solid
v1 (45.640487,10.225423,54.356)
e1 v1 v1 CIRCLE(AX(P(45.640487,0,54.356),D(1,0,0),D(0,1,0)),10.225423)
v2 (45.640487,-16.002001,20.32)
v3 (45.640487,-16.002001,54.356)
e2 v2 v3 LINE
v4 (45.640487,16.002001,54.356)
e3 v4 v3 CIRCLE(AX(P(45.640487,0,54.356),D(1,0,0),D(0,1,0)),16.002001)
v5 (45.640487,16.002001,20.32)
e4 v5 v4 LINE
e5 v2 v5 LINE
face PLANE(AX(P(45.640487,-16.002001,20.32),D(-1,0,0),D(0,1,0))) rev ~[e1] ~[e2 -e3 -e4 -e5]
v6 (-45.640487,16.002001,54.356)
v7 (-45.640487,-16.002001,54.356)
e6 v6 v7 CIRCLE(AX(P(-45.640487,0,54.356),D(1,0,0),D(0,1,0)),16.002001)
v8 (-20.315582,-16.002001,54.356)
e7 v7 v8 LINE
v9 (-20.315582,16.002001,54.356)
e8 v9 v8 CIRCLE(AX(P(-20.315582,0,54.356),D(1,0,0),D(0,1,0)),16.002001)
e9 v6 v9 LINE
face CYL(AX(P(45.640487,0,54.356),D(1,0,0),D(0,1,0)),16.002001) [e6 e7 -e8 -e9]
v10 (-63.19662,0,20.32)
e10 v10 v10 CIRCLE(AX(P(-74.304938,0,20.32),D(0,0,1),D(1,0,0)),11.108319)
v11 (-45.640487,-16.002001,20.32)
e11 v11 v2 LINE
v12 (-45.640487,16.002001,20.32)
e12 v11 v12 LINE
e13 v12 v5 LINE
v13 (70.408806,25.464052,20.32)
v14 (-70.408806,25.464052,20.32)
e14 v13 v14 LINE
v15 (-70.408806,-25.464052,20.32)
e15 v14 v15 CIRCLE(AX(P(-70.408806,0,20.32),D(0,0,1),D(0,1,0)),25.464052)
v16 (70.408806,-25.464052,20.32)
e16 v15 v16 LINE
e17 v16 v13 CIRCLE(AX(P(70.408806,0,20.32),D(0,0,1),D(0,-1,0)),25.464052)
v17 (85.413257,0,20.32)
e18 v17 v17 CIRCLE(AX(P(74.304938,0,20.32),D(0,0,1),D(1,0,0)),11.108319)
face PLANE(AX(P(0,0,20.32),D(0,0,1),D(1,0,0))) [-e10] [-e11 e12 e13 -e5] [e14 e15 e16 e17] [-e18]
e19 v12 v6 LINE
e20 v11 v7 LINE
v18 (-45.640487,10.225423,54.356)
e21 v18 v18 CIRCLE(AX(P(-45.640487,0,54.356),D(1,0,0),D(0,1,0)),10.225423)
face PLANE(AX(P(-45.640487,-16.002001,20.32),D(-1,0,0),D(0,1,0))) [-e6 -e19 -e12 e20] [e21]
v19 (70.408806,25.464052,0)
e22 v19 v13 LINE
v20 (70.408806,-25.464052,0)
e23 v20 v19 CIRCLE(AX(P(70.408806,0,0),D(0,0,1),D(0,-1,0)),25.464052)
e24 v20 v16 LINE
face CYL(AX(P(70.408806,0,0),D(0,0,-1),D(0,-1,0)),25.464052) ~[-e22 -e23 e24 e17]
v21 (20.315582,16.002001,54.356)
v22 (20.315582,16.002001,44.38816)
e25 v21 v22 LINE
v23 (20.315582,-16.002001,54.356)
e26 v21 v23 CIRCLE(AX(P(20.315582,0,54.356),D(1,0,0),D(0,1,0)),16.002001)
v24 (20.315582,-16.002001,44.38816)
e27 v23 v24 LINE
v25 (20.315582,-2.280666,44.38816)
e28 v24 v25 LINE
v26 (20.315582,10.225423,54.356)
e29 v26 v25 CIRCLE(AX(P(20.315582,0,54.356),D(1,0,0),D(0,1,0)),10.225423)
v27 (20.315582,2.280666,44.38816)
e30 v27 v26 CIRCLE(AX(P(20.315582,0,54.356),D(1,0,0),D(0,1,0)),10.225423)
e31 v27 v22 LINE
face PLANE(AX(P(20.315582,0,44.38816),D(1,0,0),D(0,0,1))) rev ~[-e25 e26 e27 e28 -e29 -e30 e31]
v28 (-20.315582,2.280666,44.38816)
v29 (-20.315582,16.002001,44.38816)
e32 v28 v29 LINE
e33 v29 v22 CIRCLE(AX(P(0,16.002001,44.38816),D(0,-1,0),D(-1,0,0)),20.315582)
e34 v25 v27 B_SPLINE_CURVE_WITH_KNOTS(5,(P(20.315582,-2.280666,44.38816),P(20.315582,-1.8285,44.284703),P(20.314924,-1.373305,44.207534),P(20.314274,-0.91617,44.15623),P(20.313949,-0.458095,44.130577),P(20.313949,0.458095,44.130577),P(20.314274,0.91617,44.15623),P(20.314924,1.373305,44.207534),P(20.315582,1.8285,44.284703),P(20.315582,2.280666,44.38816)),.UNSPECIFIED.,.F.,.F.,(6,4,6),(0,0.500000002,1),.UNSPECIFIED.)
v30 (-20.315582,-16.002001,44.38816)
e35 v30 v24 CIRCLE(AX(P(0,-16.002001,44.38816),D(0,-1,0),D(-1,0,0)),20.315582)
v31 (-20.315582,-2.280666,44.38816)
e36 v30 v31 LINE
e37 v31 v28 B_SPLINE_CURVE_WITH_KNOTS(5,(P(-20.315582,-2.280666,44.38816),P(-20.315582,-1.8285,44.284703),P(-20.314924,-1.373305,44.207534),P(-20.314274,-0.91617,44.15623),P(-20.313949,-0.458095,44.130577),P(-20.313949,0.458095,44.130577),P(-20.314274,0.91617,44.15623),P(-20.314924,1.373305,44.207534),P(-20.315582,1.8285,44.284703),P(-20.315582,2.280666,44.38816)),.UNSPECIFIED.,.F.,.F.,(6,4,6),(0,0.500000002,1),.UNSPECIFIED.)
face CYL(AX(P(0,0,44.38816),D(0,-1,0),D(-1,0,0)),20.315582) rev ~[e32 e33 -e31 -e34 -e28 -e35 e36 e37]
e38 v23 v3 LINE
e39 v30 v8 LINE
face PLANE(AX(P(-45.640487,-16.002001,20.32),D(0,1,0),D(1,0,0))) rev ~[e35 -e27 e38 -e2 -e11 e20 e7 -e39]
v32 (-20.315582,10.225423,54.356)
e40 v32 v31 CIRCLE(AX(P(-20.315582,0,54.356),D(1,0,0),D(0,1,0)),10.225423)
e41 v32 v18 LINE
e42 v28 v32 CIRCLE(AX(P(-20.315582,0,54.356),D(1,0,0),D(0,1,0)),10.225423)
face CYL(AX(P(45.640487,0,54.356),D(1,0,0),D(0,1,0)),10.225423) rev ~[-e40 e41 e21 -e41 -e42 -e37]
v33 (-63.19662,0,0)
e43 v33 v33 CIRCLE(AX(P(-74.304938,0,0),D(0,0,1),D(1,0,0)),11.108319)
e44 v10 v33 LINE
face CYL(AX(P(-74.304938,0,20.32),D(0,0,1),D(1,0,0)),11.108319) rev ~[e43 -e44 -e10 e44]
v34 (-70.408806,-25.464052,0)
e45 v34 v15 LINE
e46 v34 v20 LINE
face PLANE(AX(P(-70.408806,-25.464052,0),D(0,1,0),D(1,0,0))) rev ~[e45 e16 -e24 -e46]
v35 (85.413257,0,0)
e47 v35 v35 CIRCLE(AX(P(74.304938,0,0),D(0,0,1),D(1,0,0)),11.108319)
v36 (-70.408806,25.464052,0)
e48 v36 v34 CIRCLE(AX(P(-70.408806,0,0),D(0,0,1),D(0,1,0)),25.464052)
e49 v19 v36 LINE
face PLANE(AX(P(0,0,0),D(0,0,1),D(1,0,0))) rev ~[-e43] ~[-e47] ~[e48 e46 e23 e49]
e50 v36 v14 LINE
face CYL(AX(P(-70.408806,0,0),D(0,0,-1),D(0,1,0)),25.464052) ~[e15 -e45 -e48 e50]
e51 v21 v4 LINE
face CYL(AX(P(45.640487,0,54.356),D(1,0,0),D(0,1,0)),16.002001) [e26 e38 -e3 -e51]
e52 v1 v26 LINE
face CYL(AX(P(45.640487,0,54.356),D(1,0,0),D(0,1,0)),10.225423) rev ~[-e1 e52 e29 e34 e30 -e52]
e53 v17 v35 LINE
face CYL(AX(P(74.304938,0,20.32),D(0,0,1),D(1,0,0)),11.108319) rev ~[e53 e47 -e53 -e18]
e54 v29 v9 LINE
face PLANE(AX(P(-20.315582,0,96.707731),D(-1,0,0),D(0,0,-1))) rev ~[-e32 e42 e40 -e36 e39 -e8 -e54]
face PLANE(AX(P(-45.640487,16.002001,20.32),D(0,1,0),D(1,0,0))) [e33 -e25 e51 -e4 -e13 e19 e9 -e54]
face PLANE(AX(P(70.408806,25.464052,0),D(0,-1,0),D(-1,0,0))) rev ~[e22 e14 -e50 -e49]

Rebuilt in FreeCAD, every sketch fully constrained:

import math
import FreeCAD as App
import Part
import Sketcher

V = App.Vector
Q = App.Units.Quantity


def add_polygon(sketch, points):
    """Adds a closed chain of lines whose ends are joined by coincident constraints."""
    first, n = sketch.GeometryCount, len(points)
    for a, b in zip(points, points[1:] + points[:1]):
        sketch.addGeometry(Part.LineSegment(App.Vector(*a, 0), App.Vector(*b, 0)), False)
    for i in range(n):
        sketch.addConstraint(Sketcher.Constraint("Coincident", first + i, 2, first + (i + 1) % n, 1))

doc = App.newDocument("Part")
body = doc.addObject("PartDesign::Body", "Body")

sketch1 = doc.addObject("Sketcher::SketchObject", "Sketch")
body.addObject(sketch1)
sketch1.AttachmentSupport = (doc.XY_Plane, [""])
sketch1.MapMode = "FlatFace"
sketch1.addGeometry([
    Part.ArcOfCircle(Part.Circle(V(70, 0, 0), V(0, 0, 1), 25), math.radians(-90), math.radians(90)),
    Part.LineSegment(V(70, 25, 0), V(-70, 25, 0)),
    Part.ArcOfCircle(Part.Circle(V(-70, 0, 0), V(0, 0, 1), 25), math.radians(90), math.radians(270)),
    Part.LineSegment(V(-70, -25, 0), V(70, -25, 0)),
], False)
sketch1.addConstraint([
    Sketcher.Constraint("Tangent", 0, 2, 1, 1),
    Sketcher.Constraint("Tangent", 1, 2, 2, 1),
    Sketcher.Constraint("Tangent", 2, 2, 3, 1),
    Sketcher.Constraint("Tangent", 3, 2, 0, 1),
    Sketcher.Constraint("Horizontal", 1),
    Sketcher.Constraint("Horizontal", 3),
    Sketcher.Constraint("Symmetric", 0, 3, 2, 3, -1, 1),
    Sketcher.Constraint("Radius", 0, 25.464052),
    Sketcher.Constraint("DistanceX", 1, 2, 1, 1, 140.817612),
])
pad1 = doc.addObject("PartDesign::Pad", "Pad")
body.addObject(pad1)
pad1.Profile = sketch1
pad1.Length = Q("0.8 in")

sketch2 = doc.addObject("Sketcher::SketchObject", "Sketch001")
body.addObject(sketch2)
sketch2.AttachmentSupport = (doc.XY_Plane, [""])
sketch2.MapMode = "FlatFace"
sketch2.AttachmentOffset = App.Placement(V(0, 0, 0.8 * 25.4), App.Rotation())
sketch2.addGeometry([
    Part.Circle(V(74, 0, 0), V(0, 0, 1), 11),
    Part.Circle(V(-74, 0, 0), V(0, 0, 1), 11),
], False)
sketch2.addConstraint([
    Sketcher.Constraint("Equal", 0, 1),
    Sketcher.Constraint("Symmetric", 0, 3, 1, 3, -1, 1),
    Sketcher.Constraint("PointOnObject", 0, 3, -1),
    Sketcher.Constraint("Diameter", 0, 22.216637),
    Sketcher.Constraint("DistanceX", -1, 1, 0, 3, 74.304938),
])
pocket1 = doc.addObject("PartDesign::Pocket", "Pocket")
body.addObject(pocket1)
pocket1.Profile = sketch2
pocket1.Length = Q("1 in")

sketch3 = doc.addObject("Sketcher::SketchObject", "Sketch002")
body.addObject(sketch3)
sketch3.AttachmentSupport = (doc.XY_Plane, [""])
sketch3.MapMode = "FlatFace"
sketch3.AttachmentOffset = App.Placement(V(0, 0, 0.8 * 25.4), App.Rotation())
add_polygon(sketch3, [(-46, 16), (-46, -16), (46, -16), (46, 16)])
sketch3.addConstraint([
    Sketcher.Constraint("Vertical", 0),
    Sketcher.Constraint("Horizontal", 1),
    Sketcher.Constraint("Vertical", 2),
    Sketcher.Constraint("Horizontal", 3),
    Sketcher.Constraint("Symmetric", 0, 2, 2, 2, -1, 1),
    Sketcher.Constraint("DistanceY", 0, 2, 0, 1, Q("1.2600001 in")),
    Sketcher.Constraint("DistanceX", 1, 1, 1, 2, 91.280974),
])
pad2 = doc.addObject("PartDesign::Pad", "Pad001")
body.addObject(pad2)
pad2.Profile = sketch3
pad2.Length = Q("1.34 in")

sketch4 = doc.addObject("Sketcher::SketchObject", "Sketch003")
body.addObject(sketch4)
sketch4.AttachmentSupport = (doc.YZ_Plane, [""])
sketch4.MapMode = "FlatFace"
sketch4.AttachmentOffset = App.Placement(V(0, 0, 45.640487), App.Rotation())
sketch4.addGeometry(Part.Circle(V(0, 54, 0), V(0, 0, 1), 16), False)
sketch4.addConstraint([
    Sketcher.Constraint("PointOnObject", 0, 3, -2),
    Sketcher.Constraint("Diameter", 0, Q("1.2600001 in")),
    Sketcher.Constraint("DistanceY", -1, 1, 0, 3, Q("2.14 in")),
])
pad3 = doc.addObject("PartDesign::Pad", "Pad002")
body.addObject(pad3)
pad3.Profile = sketch4
pad3.Type = "UpToLast"
pad3.Reversed = True

sketch5 = doc.addObject("Sketcher::SketchObject", "Sketch004")
body.addObject(sketch5)
sketch5.AttachmentSupport = (doc.XZ_Plane, [""])
sketch5.MapMode = "FlatFace"
sketch5.addGeometry([
    Part.LineSegment(V(20, 44, 0), V(20, 97, 0)),
    Part.LineSegment(V(20, 97, 0), V(-20, 97, 0)),
    Part.LineSegment(V(-20, 97, 0), V(-20, 44, 0)),
    Part.ArcOfCircle(Part.Circle(V(0, 44, 0), V(0, 0, 1), 20), math.radians(-180), math.radians(0)),
], False)
sketch5.addConstraint([
    Sketcher.Constraint("Coincident", 0, 2, 1, 1),
    Sketcher.Constraint("Coincident", 1, 2, 2, 1),
    Sketcher.Constraint("Tangent", 2, 2, 3, 1),
    Sketcher.Constraint("Tangent", 3, 2, 0, 1),
    Sketcher.Constraint("Vertical", 0),
    Sketcher.Constraint("Horizontal", 1),
    Sketcher.Constraint("Vertical", 2),
    Sketcher.Constraint("PointOnObject", 3, 3, -2),
    Sketcher.Constraint("Radius", 3, 20.315582),
    Sketcher.Constraint("DistanceY", 0, 1, 0, 2, 52.319571),
    Sketcher.Constraint("DistanceY", -1, 1, 3, 3, 44.38816),
])
pocket2 = doc.addObject("PartDesign::Pocket", "Pocket001")
body.addObject(pocket2)
pocket2.Profile = sketch5
pocket2.Length = Q("2.64 in")
pocket2.Midplane = True

sketch6 = doc.addObject("Sketcher::SketchObject", "Sketch005")
body.addObject(sketch6)
sketch6.AttachmentSupport = (doc.YZ_Plane, [""])
sketch6.MapMode = "FlatFace"
sketch6.AttachmentOffset = App.Placement(V(0, 0, 45.640487), App.Rotation())
sketch6.addGeometry(Part.Circle(V(0, 54, 0), V(0, 0, 1), 10), False)
sketch6.addConstraint([
    Sketcher.Constraint("PointOnObject", 0, 3, -2),
    Sketcher.Constraint("DistanceY", -1, 1, 0, 3, Q("2.14 in")),
    Sketcher.Constraint("Diameter", 0, 20.450845),
])
pocket3 = doc.addObject("PartDesign::Pocket", "Pocket002")
body.addObject(pocket3)
pocket3.Profile = sketch6
pocket3.Length = Q("4.15 in")

doc.recompute()
